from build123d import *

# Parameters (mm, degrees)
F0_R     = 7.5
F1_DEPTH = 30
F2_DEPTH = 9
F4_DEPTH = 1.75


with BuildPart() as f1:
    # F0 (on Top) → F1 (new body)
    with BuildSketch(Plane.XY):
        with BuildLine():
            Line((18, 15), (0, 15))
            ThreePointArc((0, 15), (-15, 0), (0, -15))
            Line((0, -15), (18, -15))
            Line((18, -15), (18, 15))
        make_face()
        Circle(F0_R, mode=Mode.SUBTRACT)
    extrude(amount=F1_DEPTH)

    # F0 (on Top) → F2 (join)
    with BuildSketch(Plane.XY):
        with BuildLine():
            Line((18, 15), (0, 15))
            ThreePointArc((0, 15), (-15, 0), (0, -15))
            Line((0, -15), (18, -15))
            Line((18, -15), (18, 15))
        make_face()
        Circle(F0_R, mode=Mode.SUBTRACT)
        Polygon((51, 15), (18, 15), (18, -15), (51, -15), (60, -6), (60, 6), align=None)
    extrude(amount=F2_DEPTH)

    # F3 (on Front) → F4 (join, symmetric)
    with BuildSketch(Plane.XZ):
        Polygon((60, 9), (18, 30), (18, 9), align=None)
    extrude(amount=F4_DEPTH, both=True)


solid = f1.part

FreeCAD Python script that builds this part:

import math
import FreeCAD as App
import Part
import Sketcher
from FreeCAD import Vector


def add_polygon(sketch, points):
    """Adds a closed chain of lines whose ends are joined by coincident constraints."""
    first, n = sketch.GeometryCount, len(points)
    for a, b in zip(points, points[1:] + points[:1]):
        sketch.addGeometry(Part.LineSegment(App.Vector(*a, 0), App.Vector(*b, 0)), False)
    for i in range(n):
        sketch.addConstraint(Sketcher.Constraint("Coincident", first + i, 2, first + (i + 1) % n, 1))

doc = App.newDocument("Part")
body = doc.addObject("PartDesign::Body", "Body")

sketch1 = doc.addObject("Sketcher::SketchObject", "Sketch")
body.addObject(sketch1)
sketch1.AttachmentSupport = (doc.XY_Plane, [""])
sketch1.MapMode = "FlatFace"
sketch1.addGeometry(Part.LineSegment(Vector(18, 15, 0), Vector(0, 15, 0)), False)
sketch1.addGeometry(Part.ArcOfCircle(Part.Circle(Vector(0, 0, 0), Vector(0, 0, 1), 15), math.radians(90), math.radians(270)), False)
sketch1.addGeometry(Part.LineSegment(Vector(0, -15, 0), Vector(18, -15, 0)), False)
sketch1.addGeometry(Part.LineSegment(Vector(18, -15, 0), Vector(18, 15, 0)), False)
sketch1.addGeometry(Part.Circle(Vector(0, 0, 0), Vector(0, 0, 1), 7.5), False)
sketch1.addConstraint(Sketcher.Constraint("Tangent", 0, 2, 1, 1))
sketch1.addConstraint(Sketcher.Constraint("Tangent", 1, 2, 2, 1))
sketch1.addConstraint(Sketcher.Constraint("Coincident", 2, 2, 3, 1))
sketch1.addConstraint(Sketcher.Constraint("Coincident", 3, 2, 0, 1))
sketch1.addConstraint(Sketcher.Constraint("Horizontal", 0))
sketch1.addConstraint(Sketcher.Constraint("Horizontal", 2))
sketch1.addConstraint(Sketcher.Constraint("Vertical", 3))
sketch1.addConstraint(Sketcher.Constraint("Coincident", 1, 3, -1, 1))
sketch1.addConstraint(Sketcher.Constraint("Coincident", 4, 3, -1, 1))
sketch1.addConstraint(Sketcher.Constraint("Diameter", 4, 15.0))
sketch1.addConstraint(Sketcher.Constraint("Radius", 1, 15.0))
sketch1.addConstraint(Sketcher.Constraint("DistanceX", 0, 2, 0, 1, 18.0))
pad1 = doc.addObject("PartDesign::Pad", "Pad")
body.addObject(pad1)
pad1.Profile = sketch1
pad1.Length = 30

sketch2 = doc.addObject("Sketcher::SketchObject", "Sketch001")
body.addObject(sketch2)
sketch2.AttachmentSupport = (doc.XY_Plane, [""])
sketch2.MapMode = "FlatFace"
sketch2.addGeometry(Part.ArcOfCircle(Part.Circle(Vector(0, 0, 0), Vector(0, 0, 1), 15), math.radians(90), math.radians(270)), False)
sketch2.addGeometry(Part.LineSegment(Vector(0, -15, 0), Vector(51, -15, 0)), False)
sketch2.addGeometry(Part.LineSegment(Vector(51, -15, 0), Vector(60, -6, 0)), False)
sketch2.addGeometry(Part.LineSegment(Vector(60, -6, 0), Vector(60, 6, 0)), False)
sketch2.addGeometry(Part.LineSegment(Vector(60, 6, 0), Vector(51, 15, 0)), False)
sketch2.addGeometry(Part.LineSegment(Vector(51, 15, 0), Vector(0, 15, 0)), False)
sketch2.addGeometry(Part.Circle(Vector(0, 0, 0), Vector(0, 0, 1), 7.5), False)
sketch2.addConstraint(Sketcher.Constraint("Tangent", 0, 2, 1, 1))
sketch2.addConstraint(Sketcher.Constraint("Coincident", 1, 2, 2, 1))
sketch2.addConstraint(Sketcher.Constraint("Coincident", 2, 2, 3, 1))
sketch2.addConstraint(Sketcher.Constraint("Coincident", 3, 2, 4, 1))
sketch2.addConstraint(Sketcher.Constraint("Coincident", 4, 2, 5, 1))
sketch2.addConstraint(Sketcher.Constraint("Tangent", 5, 2, 0, 1))
sketch2.addConstraint(Sketcher.Constraint("Horizontal", 1))
sketch2.addConstraint(Sketcher.Constraint("Vertical", 3))
sketch2.addConstraint(Sketcher.Constraint("Horizontal", 5))
sketch2.addConstraint(Sketcher.Constraint("Coincident", 0, 3, -1, 1))
sketch2.addConstraint(Sketcher.Constraint("Coincident", 6, 3, -1, 1))
sketch2.addConstraint(Sketcher.Constraint("Perpendicular", 2, 4))
sketch2.addConstraint(Sketcher.Constraint("Vertical", 1, 2, 4, 2))
sketch2.addConstraint(Sketcher.Constraint("Equal", 2, 4))
sketch2.addConstraint(Sketcher.Constraint("Diameter", 6, 15.0))
sketch2.addConstraint(Sketcher.Constraint("Radius", 0, 15.0))
sketch2.addConstraint(Sketcher.Constraint("DistanceX", 1, 1, 1, 2, 51.0))
sketch2.addConstraint(Sketcher.Constraint("DistanceY", 3, 1, 3, 2, 12.0))
pad2 = doc.addObject("PartDesign::Pad", "Pad001")
body.addObject(pad2)
pad2.Profile = sketch2
pad2.Length = 9

sketch3 = doc.addObject("Sketcher::SketchObject", "Sketch002")
body.addObject(sketch3)
sketch3.AttachmentSupport = (doc.XZ_Plane, [""])
sketch3.MapMode = "FlatFace"
add_polygon(sketch3, [(60, 9), (18, 30), (18, 9)])
sketch3.addConstraint(Sketcher.Constraint("Vertical", 1))
sketch3.addConstraint(Sketcher.Constraint("Horizontal", 2))
sketch3.addConstraint(Sketcher.Constraint("DistanceX", 2, 1, 2, 2, 42.0))
sketch3.addConstraint(Sketcher.Constraint("DistanceY", 1, 2, 1, 1, 21.0))
sketch3.addConstraint(Sketcher.Constraint("DistanceX", -1, 1, 0, 2, 18.0))
sketch3.addConstraint(Sketcher.Constraint("DistanceY", -1, 1, 0, 2, 30.0))
pad3 = doc.addObject("PartDesign::Pad", "Pad002")
body.addObject(pad3)
pad3.Profile = sketch3
pad3.Length = 3.5
pad3.Midplane = True

doc.recompute()
